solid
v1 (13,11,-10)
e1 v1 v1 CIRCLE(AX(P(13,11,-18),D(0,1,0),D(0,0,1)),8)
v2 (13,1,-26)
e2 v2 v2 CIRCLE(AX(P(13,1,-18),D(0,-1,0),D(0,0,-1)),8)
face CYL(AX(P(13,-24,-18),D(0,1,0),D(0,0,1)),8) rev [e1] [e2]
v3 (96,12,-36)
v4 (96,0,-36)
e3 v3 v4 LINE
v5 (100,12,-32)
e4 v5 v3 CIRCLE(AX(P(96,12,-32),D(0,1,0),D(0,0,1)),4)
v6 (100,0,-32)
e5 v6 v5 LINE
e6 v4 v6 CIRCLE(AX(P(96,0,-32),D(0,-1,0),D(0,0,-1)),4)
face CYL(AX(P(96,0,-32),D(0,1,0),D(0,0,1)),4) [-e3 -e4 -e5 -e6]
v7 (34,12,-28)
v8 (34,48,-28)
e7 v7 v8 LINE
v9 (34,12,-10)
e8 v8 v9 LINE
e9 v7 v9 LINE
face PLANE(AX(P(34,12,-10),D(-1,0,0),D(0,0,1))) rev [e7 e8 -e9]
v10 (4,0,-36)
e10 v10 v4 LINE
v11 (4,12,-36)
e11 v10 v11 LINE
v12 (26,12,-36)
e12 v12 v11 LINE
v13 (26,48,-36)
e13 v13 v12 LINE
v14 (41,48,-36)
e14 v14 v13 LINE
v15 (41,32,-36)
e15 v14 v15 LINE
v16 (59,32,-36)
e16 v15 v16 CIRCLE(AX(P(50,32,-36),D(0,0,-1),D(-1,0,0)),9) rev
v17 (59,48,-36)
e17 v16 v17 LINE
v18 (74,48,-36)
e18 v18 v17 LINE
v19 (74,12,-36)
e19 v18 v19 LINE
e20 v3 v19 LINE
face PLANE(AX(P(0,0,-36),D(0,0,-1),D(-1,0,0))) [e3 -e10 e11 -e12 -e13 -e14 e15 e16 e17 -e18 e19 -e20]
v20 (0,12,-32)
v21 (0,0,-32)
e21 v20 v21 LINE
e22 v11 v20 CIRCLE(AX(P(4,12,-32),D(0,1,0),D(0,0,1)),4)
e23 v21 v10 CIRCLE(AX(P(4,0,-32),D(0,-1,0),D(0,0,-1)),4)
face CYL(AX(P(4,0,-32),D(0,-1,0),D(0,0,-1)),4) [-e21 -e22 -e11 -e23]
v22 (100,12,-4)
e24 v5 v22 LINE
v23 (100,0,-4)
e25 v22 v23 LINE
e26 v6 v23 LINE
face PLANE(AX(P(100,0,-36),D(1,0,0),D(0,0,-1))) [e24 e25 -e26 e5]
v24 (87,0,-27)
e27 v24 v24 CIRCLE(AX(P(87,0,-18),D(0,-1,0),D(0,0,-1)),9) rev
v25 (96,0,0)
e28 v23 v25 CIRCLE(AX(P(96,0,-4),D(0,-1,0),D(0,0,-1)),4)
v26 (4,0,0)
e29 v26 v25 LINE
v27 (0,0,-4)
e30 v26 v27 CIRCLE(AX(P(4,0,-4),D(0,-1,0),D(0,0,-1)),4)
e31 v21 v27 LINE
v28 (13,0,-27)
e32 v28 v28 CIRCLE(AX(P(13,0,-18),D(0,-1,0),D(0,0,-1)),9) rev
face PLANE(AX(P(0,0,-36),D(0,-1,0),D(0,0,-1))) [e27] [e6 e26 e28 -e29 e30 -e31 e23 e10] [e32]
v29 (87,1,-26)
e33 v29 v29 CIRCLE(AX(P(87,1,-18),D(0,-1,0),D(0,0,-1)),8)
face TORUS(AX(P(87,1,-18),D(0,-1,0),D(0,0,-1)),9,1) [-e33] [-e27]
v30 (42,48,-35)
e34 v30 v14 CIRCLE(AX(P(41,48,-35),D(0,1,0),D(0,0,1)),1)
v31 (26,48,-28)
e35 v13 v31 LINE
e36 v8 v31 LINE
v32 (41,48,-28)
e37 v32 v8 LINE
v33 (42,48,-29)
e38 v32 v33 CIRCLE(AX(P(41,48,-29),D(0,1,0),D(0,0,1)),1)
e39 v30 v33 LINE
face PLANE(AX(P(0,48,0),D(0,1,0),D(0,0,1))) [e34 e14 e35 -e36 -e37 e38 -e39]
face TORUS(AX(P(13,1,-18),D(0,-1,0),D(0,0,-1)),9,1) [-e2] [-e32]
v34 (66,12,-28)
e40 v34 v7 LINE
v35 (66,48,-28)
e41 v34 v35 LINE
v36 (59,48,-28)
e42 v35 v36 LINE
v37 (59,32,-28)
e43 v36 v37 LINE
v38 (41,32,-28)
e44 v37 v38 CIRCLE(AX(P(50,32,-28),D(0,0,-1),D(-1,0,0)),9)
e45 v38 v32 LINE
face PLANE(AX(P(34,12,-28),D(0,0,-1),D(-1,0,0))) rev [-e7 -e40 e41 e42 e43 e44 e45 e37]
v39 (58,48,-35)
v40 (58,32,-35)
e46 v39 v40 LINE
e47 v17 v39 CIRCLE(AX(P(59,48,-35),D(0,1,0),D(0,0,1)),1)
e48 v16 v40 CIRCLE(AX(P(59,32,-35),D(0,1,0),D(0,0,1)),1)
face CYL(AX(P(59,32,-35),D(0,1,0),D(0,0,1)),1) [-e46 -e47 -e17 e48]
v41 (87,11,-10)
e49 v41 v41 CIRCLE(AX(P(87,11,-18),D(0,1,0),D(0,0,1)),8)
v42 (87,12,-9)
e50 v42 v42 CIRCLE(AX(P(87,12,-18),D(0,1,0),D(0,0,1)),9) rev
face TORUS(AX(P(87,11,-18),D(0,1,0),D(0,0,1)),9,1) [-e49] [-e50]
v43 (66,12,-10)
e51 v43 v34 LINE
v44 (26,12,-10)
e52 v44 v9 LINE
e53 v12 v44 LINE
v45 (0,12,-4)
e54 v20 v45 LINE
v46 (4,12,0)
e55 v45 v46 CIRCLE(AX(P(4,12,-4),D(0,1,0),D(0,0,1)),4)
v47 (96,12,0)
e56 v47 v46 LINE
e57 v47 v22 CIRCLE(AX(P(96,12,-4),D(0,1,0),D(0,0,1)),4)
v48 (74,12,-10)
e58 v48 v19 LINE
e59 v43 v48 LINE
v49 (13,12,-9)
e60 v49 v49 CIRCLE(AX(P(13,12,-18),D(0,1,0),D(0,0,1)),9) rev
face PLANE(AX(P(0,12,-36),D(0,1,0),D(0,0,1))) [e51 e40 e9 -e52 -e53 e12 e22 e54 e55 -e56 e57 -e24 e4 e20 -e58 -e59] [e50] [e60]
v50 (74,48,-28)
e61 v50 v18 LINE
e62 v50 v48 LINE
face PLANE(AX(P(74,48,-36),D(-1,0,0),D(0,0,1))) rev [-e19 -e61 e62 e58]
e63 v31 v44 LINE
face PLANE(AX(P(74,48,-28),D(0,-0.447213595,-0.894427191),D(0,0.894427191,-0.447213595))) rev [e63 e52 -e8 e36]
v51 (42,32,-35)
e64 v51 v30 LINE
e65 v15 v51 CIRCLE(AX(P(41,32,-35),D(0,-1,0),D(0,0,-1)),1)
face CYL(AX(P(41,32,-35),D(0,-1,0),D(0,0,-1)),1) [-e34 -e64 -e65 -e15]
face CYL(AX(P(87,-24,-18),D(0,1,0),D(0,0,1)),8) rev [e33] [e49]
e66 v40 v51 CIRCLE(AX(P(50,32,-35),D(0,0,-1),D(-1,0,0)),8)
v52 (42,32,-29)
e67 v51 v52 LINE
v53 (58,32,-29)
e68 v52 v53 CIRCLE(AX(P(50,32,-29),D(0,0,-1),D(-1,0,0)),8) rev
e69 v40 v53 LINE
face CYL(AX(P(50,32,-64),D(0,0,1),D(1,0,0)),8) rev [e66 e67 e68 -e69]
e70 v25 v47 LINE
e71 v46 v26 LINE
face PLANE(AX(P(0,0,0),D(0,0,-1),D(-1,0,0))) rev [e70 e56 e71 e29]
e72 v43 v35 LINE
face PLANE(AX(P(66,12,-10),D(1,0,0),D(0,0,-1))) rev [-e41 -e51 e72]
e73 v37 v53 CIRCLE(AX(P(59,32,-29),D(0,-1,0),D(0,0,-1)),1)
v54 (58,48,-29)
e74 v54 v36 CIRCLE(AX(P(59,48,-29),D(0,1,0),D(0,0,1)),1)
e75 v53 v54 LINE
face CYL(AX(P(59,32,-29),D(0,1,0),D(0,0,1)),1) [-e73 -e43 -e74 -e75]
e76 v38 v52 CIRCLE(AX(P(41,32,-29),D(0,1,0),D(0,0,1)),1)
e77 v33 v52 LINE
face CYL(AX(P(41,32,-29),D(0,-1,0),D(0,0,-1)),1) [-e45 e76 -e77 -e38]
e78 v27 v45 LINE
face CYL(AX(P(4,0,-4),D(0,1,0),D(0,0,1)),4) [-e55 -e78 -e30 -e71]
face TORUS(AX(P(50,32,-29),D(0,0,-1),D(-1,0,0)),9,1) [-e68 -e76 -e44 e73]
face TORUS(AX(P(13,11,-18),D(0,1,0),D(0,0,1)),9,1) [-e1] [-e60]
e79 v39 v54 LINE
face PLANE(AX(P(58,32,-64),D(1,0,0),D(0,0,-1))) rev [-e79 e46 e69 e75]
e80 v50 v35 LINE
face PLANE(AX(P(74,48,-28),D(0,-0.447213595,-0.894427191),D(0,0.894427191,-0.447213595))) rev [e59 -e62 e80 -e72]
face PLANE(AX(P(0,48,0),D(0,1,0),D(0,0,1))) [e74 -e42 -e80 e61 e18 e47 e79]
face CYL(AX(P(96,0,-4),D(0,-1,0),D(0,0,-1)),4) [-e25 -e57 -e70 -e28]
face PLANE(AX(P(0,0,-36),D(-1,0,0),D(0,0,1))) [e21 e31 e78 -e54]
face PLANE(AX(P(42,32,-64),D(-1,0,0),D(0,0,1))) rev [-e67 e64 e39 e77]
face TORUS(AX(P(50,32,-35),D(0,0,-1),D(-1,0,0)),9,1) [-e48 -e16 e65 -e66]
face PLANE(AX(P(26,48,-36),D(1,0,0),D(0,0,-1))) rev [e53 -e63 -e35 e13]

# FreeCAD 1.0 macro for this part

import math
import FreeCAD as App
import Part
import Sketcher

V = App.Vector


def edges_at(feature, points):
    """Names of the edges that pass closest to the given points."""
    edges = feature.Shape.Edges
    near = lambda p: min(range(len(edges)), key=lambda i: edges[i].distToShape(Part.Vertex(*p))[0])
    return sorted({f"Edge{near(p) + 1}" for p in points})


def add_polygon(sketch, points):
    """Adds a closed chain of lines whose ends are joined by coincident constraints."""
    first, n = sketch.GeometryCount, len(points)
    for a, b in zip(points, points[1:] + points[:1]):
        sketch.addGeometry(Part.LineSegment(App.Vector(*a, 0), App.Vector(*b, 0)), False)
    for i in range(n):
        sketch.addConstraint(Sketcher.Constraint("Coincident", first + i, 2, first + (i + 1) % n, 1))

doc = App.newDocument("Part")
body = doc.addObject("PartDesign::Body", "Body")

# Sketch on XY plane
sketch1 = doc.addObject("Sketcher::SketchObject", "Sketch")
body.addObject(sketch1)
sketch1.AttachmentSupport = (doc.XY_Plane, [""])
sketch1.MapMode = "FlatFace"
add_polygon(sketch1, [(0, 12), (0, 0), (100, 0), (100, 12)])  # lines 0-3
sketch1.addConstraint([
    Sketcher.Constraint("Vertical", 0),
    Sketcher.Constraint("Horizontal", 1),
    Sketcher.Constraint("Vertical", 2),
    Sketcher.Constraint("Horizontal", 3),
    Sketcher.Constraint("Coincident", 0, 2, -1, 1),
    Sketcher.Constraint("DistanceX", 1, 1, 1, 2, 100.0),
    Sketcher.Constraint("DistanceY", 0, 2, 0, 1, 12.0),
])
pad1 = doc.addObject("PartDesign::Pad", "Pad")
body.addObject(pad1)
pad1.Profile = sketch1
pad1.Length = 36
pad1.Reversed = True

# Sketch on XZ plane
sketch2 = doc.addObject("Sketcher::SketchObject", "Sketch001")
body.addObject(sketch2)
sketch2.AttachmentSupport = (doc.XZ_Plane, [""])
sketch2.MapMode = "FlatFace"
sketch2.AttachmentOffset = App.Placement(V(0, 0, -12), App.Rotation())
add_polygon(sketch2, [(26, -36), (26, -10), (74, -10), (74, -36)])  # lines 0-3
sketch2.addConstraint([
    Sketcher.Constraint("Vertical", 0),
    Sketcher.Constraint("Horizontal", 1),
    Sketcher.Constraint("Vertical", 2),
    Sketcher.Constraint("Horizontal", 3),
    Sketcher.Constraint("DistanceX", 1, 1, 1, 2, 48.0),
    Sketcher.Constraint("DistanceY", 0, 1, 0, 2, 26.0),
    Sketcher.Constraint("DistanceX", -1, 1, 0, 2, 26.0),
    Sketcher.Constraint("DistanceY", 0, 2, -1, 1, 10.0),
])
pad2 = doc.addObject("PartDesign::Pad", "Pad001")
body.addObject(pad2)
pad2.Profile = sketch2
pad2.Length = 36
pad2.Reversed = True

# Sketch on XZ plane
sketch3 = doc.addObject("Sketcher::SketchObject", "Sketch002")
body.addObject(sketch3)
sketch3.AttachmentSupport = (doc.XZ_Plane, [""])
sketch3.MapMode = "FlatFace"
sketch3.AttachmentOffset = App.Placement(V(0, 0, -48), App.Rotation())
add_polygon(sketch3, [(34, -28), (34, -10), (66, -10), (66, -28)])  # lines 0-3
sketch3.addConstraint([
    Sketcher.Constraint("Vertical", 0),
    Sketcher.Constraint("Horizontal", 1),
    Sketcher.Constraint("Vertical", 2),
    Sketcher.Constraint("Horizontal", 3),
    Sketcher.Constraint("DistanceX", 1, 1, 1, 2, 32.0),
    Sketcher.Constraint("DistanceY", 0, 1, 0, 2, 18.0),
    Sketcher.Constraint("DistanceX", -1, 1, 0, 2, 34.0),
    Sketcher.Constraint("DistanceY", 0, 2, -1, 1, 10.0),
])
pocket1 = doc.addObject("PartDesign::Pocket", "Pocket")
body.addObject(pocket1)
pocket1.Profile = sketch3
pocket1.Length = 36
pocket1.Reversed = True

# Sketch on YZ plane
sketch4 = doc.addObject("Sketcher::SketchObject", "Sketch003")
body.addObject(sketch4)
sketch4.AttachmentSupport = (doc.YZ_Plane, [""])
sketch4.MapMode = "FlatFace"
sketch4.AttachmentOffset = App.Placement(V(0, 0, 74), App.Rotation())
add_polygon(sketch4, [(48, -28), (12, -10), (48, -10)])  # lines 0-2
sketch4.addConstraint([
    Sketcher.Constraint("Horizontal", 1),
    Sketcher.Constraint("Vertical", 2),
    Sketcher.Constraint("DistanceX", 1, 1, 1, 2, 36.0),
    Sketcher.Constraint("DistanceY", 2, 2, 2, 1, 18.0),
    Sketcher.Constraint("DistanceX", -1, 1, 0, 2, 12.0),
    Sketcher.Constraint("DistanceY", 0, 2, -1, 1, 10.0),
])
pocket2 = doc.addObject("PartDesign::Pocket", "Pocket001")
body.addObject(pocket2)
pocket2.Profile = sketch4
pocket2.Length = 48

# Sketch on XY plane
sketch5 = doc.addObject("Sketcher::SketchObject", "Sketch004")
body.addObject(sketch5)
sketch5.AttachmentSupport = (doc.XY_Plane, [""])
sketch5.MapMode = "FlatFace"
sketch5.AttachmentOffset = App.Placement(V(0, 0, -28), App.Rotation())
sketch5.addGeometry([
    Part.LineSegment(V(58, 48, 0), V(42, 48, 0)),
    Part.LineSegment(V(42, 48, 0), V(42, 32, 0)),
    Part.ArcOfCircle(Part.Circle(V(50, 32, 0), V(0, 0, 1), 8), math.radians(180), math.radians(360)),
    Part.LineSegment(V(58, 32, 0), V(58, 48, 0)),
], False)
sketch5.addConstraint([
    Sketcher.Constraint("Coincident", 0, 2, 1, 1),
    Sketcher.Constraint("Tangent", 1, 2, 2, 1),
    Sketcher.Constraint("Tangent", 2, 2, 3, 1),
    Sketcher.Constraint("Coincident", 3, 2, 0, 1),
    Sketcher.Constraint("Horizontal", 0),
    Sketcher.Constraint("Vertical", 1),
    Sketcher.Constraint("Vertical", 3),
    Sketcher.Constraint("Equal", 0, 1),
    Sketcher.Constraint("Radius", 2, 8.0),
    Sketcher.Constraint("DistanceX", -1, 1, 2, 3, 50.0),
    Sketcher.Constraint("DistanceY", -1, 1, 2, 3, 32.0),
])
pocket3 = doc.addObject("PartDesign::Pocket", "Pocket002")
body.addObject(pocket3)
pocket3.Profile = sketch5
pocket3.Length = 36

# Sketch on XZ plane
sketch6 = doc.addObject("Sketcher::SketchObject", "Sketch005")
body.addObject(sketch6)
sketch6.AttachmentSupport = (doc.XZ_Plane, [""])
sketch6.MapMode = "FlatFace"
sketch6.AttachmentOffset = App.Placement(V(0, 0, -12), App.Rotation())
sketch6.addGeometry([
    Part.Circle(V(13, -18, 0), V(0, 0, 1), 8),
    Part.Circle(V(87, -18, 0), V(0, 0, 1), 8),
], False)
sketch6.addConstraint([
    Sketcher.Constraint("Equal", 0, 1),
    Sketcher.Constraint("Horizontal", 0, 3, 1, 3),
    Sketcher.Constraint("Diameter", 0, 16.0),
    Sketcher.Constraint("DistanceX", -1, 1, 0, 3, 13.0),
    Sketcher.Constraint("DistanceY", 0, 3, -1, 1, 18.0),
    Sketcher.Constraint("DistanceX", -1, 1, 1, 3, 87.0),
])
pocket4 = doc.addObject("PartDesign::Pocket", "Pocket003")
body.addObject(pocket4)
pocket4.Profile = sketch6
pocket4.Length = 36
pocket4.Reversed = True
doc.recompute()

fillet = doc.addObject("PartDesign::Fillet", "Fillet")
body.addObject(fillet)
fillet.Base = (pocket4, edges_at(pocket4, [
    (100, 6, -36),
    (0, 6, -36),
    (100, 6, 0),
    (0, 6, 0),
]))
fillet.Radius = 4
doc.recompute()

fillet2 = doc.addObject("PartDesign::Fillet", "Fillet001")
body.addObject(fillet2)
fillet2.Base = (fillet, edges_at(fillet, [
    (50, 24, -36),
    (42, 40, -36),
    (58, 40, -36),
    (50, 24, -28),
    (58, 40, -28),
    (42, 40, -28),
    (79, 0, -18),
    (79, 12, -18),
    (5, 0, -18),
    (5, 12, -18),
]))
fillet2.Radius = 1

doc.recompute()
